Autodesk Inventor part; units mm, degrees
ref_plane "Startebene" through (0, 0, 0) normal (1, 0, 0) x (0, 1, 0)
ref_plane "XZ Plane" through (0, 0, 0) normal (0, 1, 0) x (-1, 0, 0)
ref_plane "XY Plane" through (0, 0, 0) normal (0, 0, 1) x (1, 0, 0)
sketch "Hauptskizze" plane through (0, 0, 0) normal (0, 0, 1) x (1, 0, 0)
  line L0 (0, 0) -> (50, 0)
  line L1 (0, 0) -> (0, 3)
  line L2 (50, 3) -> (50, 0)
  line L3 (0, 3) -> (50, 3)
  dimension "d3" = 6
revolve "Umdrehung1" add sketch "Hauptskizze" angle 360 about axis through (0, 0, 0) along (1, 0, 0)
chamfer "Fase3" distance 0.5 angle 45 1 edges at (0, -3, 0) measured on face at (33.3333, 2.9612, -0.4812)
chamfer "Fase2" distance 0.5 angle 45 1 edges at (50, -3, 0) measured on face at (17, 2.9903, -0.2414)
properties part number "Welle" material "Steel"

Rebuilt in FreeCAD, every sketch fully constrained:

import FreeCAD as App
import Part
import Sketcher
Q = App.Units.Quantity


def edges_at(feature, points):
    """Names of the edges that pass closest to the given points."""
    edges = feature.Shape.Edges
    near = lambda p: min(range(len(edges)), key=lambda i: edges[i].distToShape(Part.Vertex(*p))[0])
    return sorted({f"Edge{near(p) + 1}" for p in points})


def add_polygon(sketch, points):
    """Adds a closed chain of lines whose ends are joined by coincident constraints."""
    first, n = sketch.GeometryCount, len(points)
    for a, b in zip(points, points[1:] + points[:1]):
        sketch.addGeometry(Part.LineSegment(App.Vector(*a, 0), App.Vector(*b, 0)), False)
    for i in range(n):
        sketch.addConstraint(Sketcher.Constraint("Coincident", first + i, 2, first + (i + 1) % n, 1))

doc = App.newDocument("Part")
params = doc.addObject("Spreadsheet::Sheet", "Params")
for row, (alias, value) in enumerate([
    ("sketch1_width", "50 mm"),
    ("sketch1_height", "3 mm"),
    ("revolution_angle", "360 deg"),
    ("chamfer_size", "0.5 mm"),
    ("chamfer2_size", "0.5 mm"),
], start=1):
    params.set(f"A{row}", alias)
    params.set(f"B{row}", "=" + value)
    params.setAlias(f"B{row}", alias)

body = doc.addObject("PartDesign::Body", "Body")

sketch1 = doc.addObject("Sketcher::SketchObject", "Sketch")
body.addObject(sketch1)
sketch1.AttachmentSupport = (doc.XY_Plane, [""])
sketch1.MapMode = "FlatFace"
add_polygon(sketch1, [(0, 3), (0, 0), (50, 0), (50, 3)])
sketch1.addConstraint([
    Sketcher.Constraint("Vertical", 0),
    Sketcher.Constraint("Horizontal", 1),
    Sketcher.Constraint("Vertical", 2),
    Sketcher.Constraint("Horizontal", 3),
    Sketcher.Constraint("Coincident", 0, 2, -1, 1),
    Sketcher.Constraint("DistanceX", 1, 1, 1, 2, Q("50 mm")),
    Sketcher.Constraint("DistanceY", 0, 2, 0, 1, Q("3 mm")),
])
sketch1.setExpression("Constraints[9]", "Params.sketch1_width")
sketch1.setExpression("Constraints[10]", "Params.sketch1_height")
revolution = doc.addObject("PartDesign::Revolution", "Revolution")
body.addObject(revolution)
revolution.Profile = sketch1
revolution.ReferenceAxis = (sketch1, ["H_Axis"])
revolution.setExpression("Angle", "Params.revolution_angle")
doc.recompute()

chamfer = doc.addObject("PartDesign::Chamfer", "Chamfer")
body.addObject(chamfer)
chamfer.Base = (revolution, edges_at(revolution, [(0, -3, 0)]))
chamfer.setExpression("Size", "Params.chamfer_size")
doc.recompute()

chamfer2 = doc.addObject("PartDesign::Chamfer", "Chamfer001")
body.addObject(chamfer2)
chamfer2.Base = (chamfer, edges_at(chamfer, [(50, -3, 0)]))
chamfer2.setExpression("Size", "Params.chamfer2_size")

doc.recompute()
